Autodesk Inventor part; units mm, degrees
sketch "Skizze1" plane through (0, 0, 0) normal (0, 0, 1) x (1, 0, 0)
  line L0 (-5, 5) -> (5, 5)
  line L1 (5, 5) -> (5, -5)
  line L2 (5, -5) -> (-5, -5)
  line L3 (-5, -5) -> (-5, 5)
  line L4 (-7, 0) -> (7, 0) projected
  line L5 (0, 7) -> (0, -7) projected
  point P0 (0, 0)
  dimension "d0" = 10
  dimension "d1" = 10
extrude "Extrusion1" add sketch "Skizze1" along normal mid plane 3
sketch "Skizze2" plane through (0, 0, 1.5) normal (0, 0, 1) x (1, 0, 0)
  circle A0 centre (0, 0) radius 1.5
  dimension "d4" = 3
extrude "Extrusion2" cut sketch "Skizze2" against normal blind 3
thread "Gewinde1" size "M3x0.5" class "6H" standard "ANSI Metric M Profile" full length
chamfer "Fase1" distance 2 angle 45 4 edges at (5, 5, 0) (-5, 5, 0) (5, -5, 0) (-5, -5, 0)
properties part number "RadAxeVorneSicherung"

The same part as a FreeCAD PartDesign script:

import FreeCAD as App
import Part
import Sketcher
from FreeCAD import Vector


def edges_at(feature, points):
    """Names of the edges that pass closest to the given points."""
    edges = feature.Shape.Edges
    near = lambda p: min(range(len(edges)), key=lambda i: edges[i].distToShape(Part.Vertex(*p))[0])
    return sorted({f"Edge{near(p) + 1}" for p in points})


def add_polygon(sketch, points):
    """Adds a closed chain of lines whose ends are joined by coincident constraints."""
    first, n = sketch.GeometryCount, len(points)
    for a, b in zip(points, points[1:] + points[:1]):
        sketch.addGeometry(Part.LineSegment(App.Vector(*a, 0), App.Vector(*b, 0)), False)
    for i in range(n):
        sketch.addConstraint(Sketcher.Constraint("Coincident", first + i, 2, first + (i + 1) % n, 1))

doc = App.newDocument("Part")
body = doc.addObject("PartDesign::Body", "Body")

sketch1 = body.newObject("Sketcher::SketchObject", "Sketch")
sketch1.AttachmentSupport = (doc.getObject("XY_Plane"), [""])
sketch1.MapMode = "FlatFace"
add_polygon(sketch1, [(-5, 5), (-5, -5), (5, -5), (5, 5)])
sketch1.addConstraint(Sketcher.Constraint("Vertical", 0))
sketch1.addConstraint(Sketcher.Constraint("Horizontal", 1))
sketch1.addConstraint(Sketcher.Constraint("Vertical", 2))
sketch1.addConstraint(Sketcher.Constraint("Horizontal", 3))
sketch1.addConstraint(Sketcher.Constraint("Symmetric", 0, 2, 2, 2, -1, 1))
sketch1.addConstraint(Sketcher.Constraint("Equal", 3, 0))
sketch1.addConstraint(Sketcher.Constraint("DistanceX", 1, 1, 1, 2, 10.0))
pad1 = body.newObject("PartDesign::Pad", "Pad")
pad1.Profile = sketch1
pad1.Length = 3
pad1.Midplane = True

sketch2 = body.newObject("Sketcher::SketchObject", "Sketch001")
sketch2.AttachmentSupport = (doc.getObject("XY_Plane"), [""])
sketch2.MapMode = "FlatFace"
sketch2.AttachmentOffset = App.Placement(Vector(0, 0, 1.5), App.Rotation())
sketch2.addGeometry(Part.Circle(Vector(0, 0, 0), Vector(0, 0, 1), 1.5), False)
sketch2.addConstraint(Sketcher.Constraint("Coincident", 0, 3, -1, 1))
sketch2.addConstraint(Sketcher.Constraint("Diameter", 0, 3.0))
pocket1 = body.newObject("PartDesign::Pocket", "Pocket")
pocket1.Profile = sketch2
pocket1.Length = 3
doc.recompute()

chamfer = body.newObject("PartDesign::Chamfer", "Chamfer")
chamfer.Base = (pocket1, edges_at(pocket1, [
    (5, 5, 0),
    (-5, 5, 0),
    (5, -5, 0),
    (-5, -5, 0),
]))
chamfer.Size = 2

doc.recompute()
